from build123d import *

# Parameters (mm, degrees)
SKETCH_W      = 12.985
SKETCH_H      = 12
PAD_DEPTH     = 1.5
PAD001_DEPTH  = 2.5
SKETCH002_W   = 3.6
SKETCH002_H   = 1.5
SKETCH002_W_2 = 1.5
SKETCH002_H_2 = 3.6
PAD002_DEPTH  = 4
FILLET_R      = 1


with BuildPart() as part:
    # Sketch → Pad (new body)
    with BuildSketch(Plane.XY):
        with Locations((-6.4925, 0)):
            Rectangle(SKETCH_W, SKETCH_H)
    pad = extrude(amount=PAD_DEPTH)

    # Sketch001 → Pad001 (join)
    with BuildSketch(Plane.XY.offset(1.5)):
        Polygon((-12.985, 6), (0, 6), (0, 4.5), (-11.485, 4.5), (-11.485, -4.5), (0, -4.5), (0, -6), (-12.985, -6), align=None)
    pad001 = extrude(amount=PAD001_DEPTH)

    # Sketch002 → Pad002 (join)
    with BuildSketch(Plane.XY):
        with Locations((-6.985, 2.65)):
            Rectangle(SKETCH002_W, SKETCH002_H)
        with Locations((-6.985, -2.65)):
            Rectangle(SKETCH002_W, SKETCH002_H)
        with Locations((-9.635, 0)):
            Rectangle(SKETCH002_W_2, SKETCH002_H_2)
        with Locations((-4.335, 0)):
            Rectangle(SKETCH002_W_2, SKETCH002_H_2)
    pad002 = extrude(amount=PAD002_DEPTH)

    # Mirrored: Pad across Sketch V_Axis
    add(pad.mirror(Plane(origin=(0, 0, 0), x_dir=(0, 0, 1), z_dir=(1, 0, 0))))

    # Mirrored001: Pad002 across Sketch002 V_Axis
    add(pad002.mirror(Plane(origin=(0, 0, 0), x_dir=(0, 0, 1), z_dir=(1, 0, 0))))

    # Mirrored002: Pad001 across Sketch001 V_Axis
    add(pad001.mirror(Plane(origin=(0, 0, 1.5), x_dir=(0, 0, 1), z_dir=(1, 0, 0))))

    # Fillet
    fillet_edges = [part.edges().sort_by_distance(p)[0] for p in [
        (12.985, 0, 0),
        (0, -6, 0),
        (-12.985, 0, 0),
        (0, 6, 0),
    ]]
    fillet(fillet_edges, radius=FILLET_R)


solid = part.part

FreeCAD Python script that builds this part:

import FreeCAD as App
import Part
import Sketcher
Q = App.Units.Quantity


def edges_at(feature, points):
    """Names of the edges that pass closest to the given points."""
    edges = feature.Shape.Edges
    near = lambda p: min(range(len(edges)), key=lambda i: edges[i].distToShape(Part.Vertex(*p))[0])
    return sorted({f"Edge{near(p) + 1}" for p in points})


def add_polygon(sketch, points):
    """Adds a closed chain of lines whose ends are joined by coincident constraints."""
    first, n = sketch.GeometryCount, len(points)
    for a, b in zip(points, points[1:] + points[:1]):
        sketch.addGeometry(Part.LineSegment(App.Vector(*a, 0), App.Vector(*b, 0)), False)
    for i in range(n):
        sketch.addConstraint(Sketcher.Constraint("Coincident", first + i, 2, first + (i + 1) % n, 1))

doc = App.newDocument("Part")
body = doc.addObject("PartDesign::Body", "Body")

# Sketch on XY plane
sketch1 = doc.addObject("Sketcher::SketchObject", "Sketch")
body.addObject(sketch1)
sketch1.AttachmentSupport = (doc.XY_Plane, [""])
sketch1.MapMode = "FlatFace"
add_polygon(sketch1, [(-13, 6), (-13, -6), (0, -6), (0, 6)])  # lines 0-3
sketch1.addConstraint(Sketcher.Constraint("Vertical", 0))
sketch1.addConstraint(Sketcher.Constraint("Horizontal", 1))
sketch1.addConstraint(Sketcher.Constraint("Vertical", 2))
sketch1.addConstraint(Sketcher.Constraint("Horizontal", 3))
sketch1.addConstraint(Sketcher.Constraint("Symmetric", 1, 2, 2, 2, -1, 1))
sketch1.addConstraint(Sketcher.Constraint("DistanceY", 0, 2, 0, 1, Q("12 mm")))
sketch1.addConstraint(Sketcher.Constraint("DistanceX", 1, 1, 1, 2, Q("12.985 mm")))
pad1 = doc.addObject("PartDesign::Pad", "Pad")
body.addObject(pad1)
pad1.Profile = sketch1
pad1.Length = 1.5

# Sketch on XY plane
sketch2 = doc.addObject("Sketcher::SketchObject", "Sketch001")
body.addObject(sketch2)
sketch2.AttachmentSupport = (doc.XY_Plane, [""])
sketch2.MapMode = "FlatFace"
sketch2.AttachmentOffset = App.Placement(App.Vector(0, 0, 1.5), App.Rotation())
add_polygon(sketch2, [(0, 6), (-13, 6), (-13, -6), (0, -6), (0, -4.5), (-11.5, -4.5), (-11.5, 4.5), (0, 4.5)])  # lines 0-7
sketch2.addConstraint(Sketcher.Constraint("Horizontal", 0))
sketch2.addConstraint(Sketcher.Constraint("Vertical", 1))
sketch2.addConstraint(Sketcher.Constraint("Horizontal", 2))
sketch2.addConstraint(Sketcher.Constraint("Vertical", 3))
sketch2.addConstraint(Sketcher.Constraint("Horizontal", 4))
sketch2.addConstraint(Sketcher.Constraint("Vertical", 5))
sketch2.addConstraint(Sketcher.Constraint("Horizontal", 6))
sketch2.addConstraint(Sketcher.Constraint("Vertical", 7))
sketch2.addConstraint(Sketcher.Constraint("Symmetric", 3, 2, 6, 2, -1, 1))
sketch2.addConstraint(Sketcher.Constraint("Symmetric", 2, 2, 7, 2, -1))
sketch2.addConstraint(Sketcher.Constraint("DistanceY", 1, 2, 1, 1, Q("12 mm")))
sketch2.addConstraint(Sketcher.Constraint("DistanceY", 5, 1, 5, 2, Q("9 mm")))
sketch2.addConstraint(Sketcher.Constraint("DistanceX", 1, 2, 4, 2, Q("1.5 mm")))
sketch2.addConstraint(Sketcher.Constraint("DistanceX", 0, 2, 0, 1, Q("12.985 mm")))
pad2 = doc.addObject("PartDesign::Pad", "Pad001")
body.addObject(pad2)
pad2.Profile = sketch2
pad2.Length = 2.5

# Sketch on XY plane
sketch3 = doc.addObject("Sketcher::SketchObject", "Sketch002")
body.addObject(sketch3)
sketch3.AttachmentSupport = (doc.XY_Plane, [""])
sketch3.MapMode = "FlatFace"
add_polygon(sketch3, [(-8.8, 3.4), (-8.8, 1.9), (-5.2, 1.9), (-5.2, 3.4)])  # lines 0-3
add_polygon(sketch3, [(-8.8, -1.9), (-8.8, -3.4), (-5.2, -3.4), (-5.2, -1.9)])  # lines 4-7
add_polygon(sketch3, [(-10.4, 1.8), (-10.4, -1.8), (-8.9, -1.8), (-8.9, 1.8)])  # lines 8-11
add_polygon(sketch3, [(-5.1, 1.8), (-5.1, -1.8), (-3.6, -1.8), (-3.6, 1.8)])  # lines 12-15
sketch3.addConstraint(Sketcher.Constraint("Vertical", 0))
sketch3.addConstraint(Sketcher.Constraint("Horizontal", 1))
sketch3.addConstraint(Sketcher.Constraint("Vertical", 2))
sketch3.addConstraint(Sketcher.Constraint("Horizontal", 3))
sketch3.addConstraint(Sketcher.Constraint("Vertical", 4))
sketch3.addConstraint(Sketcher.Constraint("Horizontal", 5))
sketch3.addConstraint(Sketcher.Constraint("Vertical", 6))
sketch3.addConstraint(Sketcher.Constraint("Horizontal", 7))
sketch3.addConstraint(Sketcher.Constraint("Vertical", 8))
sketch3.addConstraint(Sketcher.Constraint("Horizontal", 9))
sketch3.addConstraint(Sketcher.Constraint("Vertical", 10))
sketch3.addConstraint(Sketcher.Constraint("Horizontal", 11))
sketch3.addConstraint(Sketcher.Constraint("Vertical", 12))
sketch3.addConstraint(Sketcher.Constraint("Horizontal", 13))
sketch3.addConstraint(Sketcher.Constraint("Vertical", 14))
sketch3.addConstraint(Sketcher.Constraint("Horizontal", 15))
sketch3.addConstraint(Sketcher.Constraint("Symmetric", 3, 2, 4, 2, -1))
sketch3.addConstraint(Sketcher.Constraint("Symmetric", 1, 2, 6, 2, -1))
sketch3.addConstraint(Sketcher.Constraint("Horizontal", 9, 2, 12, 2))
sketch3.addConstraint(Sketcher.Constraint("Horizontal", 11, 2, 14, 2))
sketch3.addConstraint(Sketcher.Constraint("Equal", 11, 13))
sketch3.addConstraint(Sketcher.Constraint("Equal", 15, 0))
sketch3.addConstraint(Sketcher.Constraint("Equal", 7, 8))
sketch3.addConstraint(Sketcher.Constraint("DistanceX", 1, 1, 1, 2, Q("3.6 mm")))
sketch3.addConstraint(Sketcher.Constraint("DistanceX", 9, 1, 9, 2, Q("1.5 mm")))
sketch3.addConstraint(Sketcher.Constraint("DistanceY", -1, 1, 0, 2, Q("1.9 mm")))
sketch3.addConstraint(Sketcher.Constraint("DistanceY", 8, 2, -1, 1, Q("1.8 mm")))
sketch3.addConstraint(Sketcher.Constraint("DistanceX", 8, 2, 7, 2, Q("1.6 mm")))
sketch3.addConstraint(Sketcher.Constraint("DistanceX", 6, 2, 12, 2, Q("0.1 mm")))
sketch3.addConstraint(Sketcher.Constraint("DistanceX", 0, 2, -1, 1, Q("8.785 mm")))
pad3 = doc.addObject("PartDesign::Pad", "Pad002")
body.addObject(pad3)
pad3.Profile = sketch3
pad3.Length = 4
doc.recompute()

mirrored = doc.addObject("PartDesign::Mirrored", "Mirrored")
body.addObject(mirrored)
mirrored.Originals = [pad1]
mirrored.MirrorPlane = (doc.YZ_Plane, [""])
body.Tip = mirrored
doc.recompute()

mirrored2 = doc.addObject("PartDesign::Mirrored", "Mirrored001")
body.addObject(mirrored2)
mirrored2.Originals = [pad3]
mirrored2.MirrorPlane = (doc.YZ_Plane, [""])
body.Tip = mirrored2
doc.recompute()

mirrored3 = doc.addObject("PartDesign::Mirrored", "Mirrored002")
body.addObject(mirrored3)
mirrored3.Originals = [pad2]
mirrored3.MirrorPlane = (doc.YZ_Plane, [""])
body.Tip = mirrored3
doc.recompute()

fillet = doc.addObject("PartDesign::Fillet", "Fillet")
body.addObject(fillet)
fillet.Base = (mirrored3, edges_at(mirrored3, [
    (12.985, 0, 0),
    (0, -6, 0),
    (-12.985, 0, 0),
    (0, 6, 0),
]))
fillet.Radius = 1

doc.recompute()
